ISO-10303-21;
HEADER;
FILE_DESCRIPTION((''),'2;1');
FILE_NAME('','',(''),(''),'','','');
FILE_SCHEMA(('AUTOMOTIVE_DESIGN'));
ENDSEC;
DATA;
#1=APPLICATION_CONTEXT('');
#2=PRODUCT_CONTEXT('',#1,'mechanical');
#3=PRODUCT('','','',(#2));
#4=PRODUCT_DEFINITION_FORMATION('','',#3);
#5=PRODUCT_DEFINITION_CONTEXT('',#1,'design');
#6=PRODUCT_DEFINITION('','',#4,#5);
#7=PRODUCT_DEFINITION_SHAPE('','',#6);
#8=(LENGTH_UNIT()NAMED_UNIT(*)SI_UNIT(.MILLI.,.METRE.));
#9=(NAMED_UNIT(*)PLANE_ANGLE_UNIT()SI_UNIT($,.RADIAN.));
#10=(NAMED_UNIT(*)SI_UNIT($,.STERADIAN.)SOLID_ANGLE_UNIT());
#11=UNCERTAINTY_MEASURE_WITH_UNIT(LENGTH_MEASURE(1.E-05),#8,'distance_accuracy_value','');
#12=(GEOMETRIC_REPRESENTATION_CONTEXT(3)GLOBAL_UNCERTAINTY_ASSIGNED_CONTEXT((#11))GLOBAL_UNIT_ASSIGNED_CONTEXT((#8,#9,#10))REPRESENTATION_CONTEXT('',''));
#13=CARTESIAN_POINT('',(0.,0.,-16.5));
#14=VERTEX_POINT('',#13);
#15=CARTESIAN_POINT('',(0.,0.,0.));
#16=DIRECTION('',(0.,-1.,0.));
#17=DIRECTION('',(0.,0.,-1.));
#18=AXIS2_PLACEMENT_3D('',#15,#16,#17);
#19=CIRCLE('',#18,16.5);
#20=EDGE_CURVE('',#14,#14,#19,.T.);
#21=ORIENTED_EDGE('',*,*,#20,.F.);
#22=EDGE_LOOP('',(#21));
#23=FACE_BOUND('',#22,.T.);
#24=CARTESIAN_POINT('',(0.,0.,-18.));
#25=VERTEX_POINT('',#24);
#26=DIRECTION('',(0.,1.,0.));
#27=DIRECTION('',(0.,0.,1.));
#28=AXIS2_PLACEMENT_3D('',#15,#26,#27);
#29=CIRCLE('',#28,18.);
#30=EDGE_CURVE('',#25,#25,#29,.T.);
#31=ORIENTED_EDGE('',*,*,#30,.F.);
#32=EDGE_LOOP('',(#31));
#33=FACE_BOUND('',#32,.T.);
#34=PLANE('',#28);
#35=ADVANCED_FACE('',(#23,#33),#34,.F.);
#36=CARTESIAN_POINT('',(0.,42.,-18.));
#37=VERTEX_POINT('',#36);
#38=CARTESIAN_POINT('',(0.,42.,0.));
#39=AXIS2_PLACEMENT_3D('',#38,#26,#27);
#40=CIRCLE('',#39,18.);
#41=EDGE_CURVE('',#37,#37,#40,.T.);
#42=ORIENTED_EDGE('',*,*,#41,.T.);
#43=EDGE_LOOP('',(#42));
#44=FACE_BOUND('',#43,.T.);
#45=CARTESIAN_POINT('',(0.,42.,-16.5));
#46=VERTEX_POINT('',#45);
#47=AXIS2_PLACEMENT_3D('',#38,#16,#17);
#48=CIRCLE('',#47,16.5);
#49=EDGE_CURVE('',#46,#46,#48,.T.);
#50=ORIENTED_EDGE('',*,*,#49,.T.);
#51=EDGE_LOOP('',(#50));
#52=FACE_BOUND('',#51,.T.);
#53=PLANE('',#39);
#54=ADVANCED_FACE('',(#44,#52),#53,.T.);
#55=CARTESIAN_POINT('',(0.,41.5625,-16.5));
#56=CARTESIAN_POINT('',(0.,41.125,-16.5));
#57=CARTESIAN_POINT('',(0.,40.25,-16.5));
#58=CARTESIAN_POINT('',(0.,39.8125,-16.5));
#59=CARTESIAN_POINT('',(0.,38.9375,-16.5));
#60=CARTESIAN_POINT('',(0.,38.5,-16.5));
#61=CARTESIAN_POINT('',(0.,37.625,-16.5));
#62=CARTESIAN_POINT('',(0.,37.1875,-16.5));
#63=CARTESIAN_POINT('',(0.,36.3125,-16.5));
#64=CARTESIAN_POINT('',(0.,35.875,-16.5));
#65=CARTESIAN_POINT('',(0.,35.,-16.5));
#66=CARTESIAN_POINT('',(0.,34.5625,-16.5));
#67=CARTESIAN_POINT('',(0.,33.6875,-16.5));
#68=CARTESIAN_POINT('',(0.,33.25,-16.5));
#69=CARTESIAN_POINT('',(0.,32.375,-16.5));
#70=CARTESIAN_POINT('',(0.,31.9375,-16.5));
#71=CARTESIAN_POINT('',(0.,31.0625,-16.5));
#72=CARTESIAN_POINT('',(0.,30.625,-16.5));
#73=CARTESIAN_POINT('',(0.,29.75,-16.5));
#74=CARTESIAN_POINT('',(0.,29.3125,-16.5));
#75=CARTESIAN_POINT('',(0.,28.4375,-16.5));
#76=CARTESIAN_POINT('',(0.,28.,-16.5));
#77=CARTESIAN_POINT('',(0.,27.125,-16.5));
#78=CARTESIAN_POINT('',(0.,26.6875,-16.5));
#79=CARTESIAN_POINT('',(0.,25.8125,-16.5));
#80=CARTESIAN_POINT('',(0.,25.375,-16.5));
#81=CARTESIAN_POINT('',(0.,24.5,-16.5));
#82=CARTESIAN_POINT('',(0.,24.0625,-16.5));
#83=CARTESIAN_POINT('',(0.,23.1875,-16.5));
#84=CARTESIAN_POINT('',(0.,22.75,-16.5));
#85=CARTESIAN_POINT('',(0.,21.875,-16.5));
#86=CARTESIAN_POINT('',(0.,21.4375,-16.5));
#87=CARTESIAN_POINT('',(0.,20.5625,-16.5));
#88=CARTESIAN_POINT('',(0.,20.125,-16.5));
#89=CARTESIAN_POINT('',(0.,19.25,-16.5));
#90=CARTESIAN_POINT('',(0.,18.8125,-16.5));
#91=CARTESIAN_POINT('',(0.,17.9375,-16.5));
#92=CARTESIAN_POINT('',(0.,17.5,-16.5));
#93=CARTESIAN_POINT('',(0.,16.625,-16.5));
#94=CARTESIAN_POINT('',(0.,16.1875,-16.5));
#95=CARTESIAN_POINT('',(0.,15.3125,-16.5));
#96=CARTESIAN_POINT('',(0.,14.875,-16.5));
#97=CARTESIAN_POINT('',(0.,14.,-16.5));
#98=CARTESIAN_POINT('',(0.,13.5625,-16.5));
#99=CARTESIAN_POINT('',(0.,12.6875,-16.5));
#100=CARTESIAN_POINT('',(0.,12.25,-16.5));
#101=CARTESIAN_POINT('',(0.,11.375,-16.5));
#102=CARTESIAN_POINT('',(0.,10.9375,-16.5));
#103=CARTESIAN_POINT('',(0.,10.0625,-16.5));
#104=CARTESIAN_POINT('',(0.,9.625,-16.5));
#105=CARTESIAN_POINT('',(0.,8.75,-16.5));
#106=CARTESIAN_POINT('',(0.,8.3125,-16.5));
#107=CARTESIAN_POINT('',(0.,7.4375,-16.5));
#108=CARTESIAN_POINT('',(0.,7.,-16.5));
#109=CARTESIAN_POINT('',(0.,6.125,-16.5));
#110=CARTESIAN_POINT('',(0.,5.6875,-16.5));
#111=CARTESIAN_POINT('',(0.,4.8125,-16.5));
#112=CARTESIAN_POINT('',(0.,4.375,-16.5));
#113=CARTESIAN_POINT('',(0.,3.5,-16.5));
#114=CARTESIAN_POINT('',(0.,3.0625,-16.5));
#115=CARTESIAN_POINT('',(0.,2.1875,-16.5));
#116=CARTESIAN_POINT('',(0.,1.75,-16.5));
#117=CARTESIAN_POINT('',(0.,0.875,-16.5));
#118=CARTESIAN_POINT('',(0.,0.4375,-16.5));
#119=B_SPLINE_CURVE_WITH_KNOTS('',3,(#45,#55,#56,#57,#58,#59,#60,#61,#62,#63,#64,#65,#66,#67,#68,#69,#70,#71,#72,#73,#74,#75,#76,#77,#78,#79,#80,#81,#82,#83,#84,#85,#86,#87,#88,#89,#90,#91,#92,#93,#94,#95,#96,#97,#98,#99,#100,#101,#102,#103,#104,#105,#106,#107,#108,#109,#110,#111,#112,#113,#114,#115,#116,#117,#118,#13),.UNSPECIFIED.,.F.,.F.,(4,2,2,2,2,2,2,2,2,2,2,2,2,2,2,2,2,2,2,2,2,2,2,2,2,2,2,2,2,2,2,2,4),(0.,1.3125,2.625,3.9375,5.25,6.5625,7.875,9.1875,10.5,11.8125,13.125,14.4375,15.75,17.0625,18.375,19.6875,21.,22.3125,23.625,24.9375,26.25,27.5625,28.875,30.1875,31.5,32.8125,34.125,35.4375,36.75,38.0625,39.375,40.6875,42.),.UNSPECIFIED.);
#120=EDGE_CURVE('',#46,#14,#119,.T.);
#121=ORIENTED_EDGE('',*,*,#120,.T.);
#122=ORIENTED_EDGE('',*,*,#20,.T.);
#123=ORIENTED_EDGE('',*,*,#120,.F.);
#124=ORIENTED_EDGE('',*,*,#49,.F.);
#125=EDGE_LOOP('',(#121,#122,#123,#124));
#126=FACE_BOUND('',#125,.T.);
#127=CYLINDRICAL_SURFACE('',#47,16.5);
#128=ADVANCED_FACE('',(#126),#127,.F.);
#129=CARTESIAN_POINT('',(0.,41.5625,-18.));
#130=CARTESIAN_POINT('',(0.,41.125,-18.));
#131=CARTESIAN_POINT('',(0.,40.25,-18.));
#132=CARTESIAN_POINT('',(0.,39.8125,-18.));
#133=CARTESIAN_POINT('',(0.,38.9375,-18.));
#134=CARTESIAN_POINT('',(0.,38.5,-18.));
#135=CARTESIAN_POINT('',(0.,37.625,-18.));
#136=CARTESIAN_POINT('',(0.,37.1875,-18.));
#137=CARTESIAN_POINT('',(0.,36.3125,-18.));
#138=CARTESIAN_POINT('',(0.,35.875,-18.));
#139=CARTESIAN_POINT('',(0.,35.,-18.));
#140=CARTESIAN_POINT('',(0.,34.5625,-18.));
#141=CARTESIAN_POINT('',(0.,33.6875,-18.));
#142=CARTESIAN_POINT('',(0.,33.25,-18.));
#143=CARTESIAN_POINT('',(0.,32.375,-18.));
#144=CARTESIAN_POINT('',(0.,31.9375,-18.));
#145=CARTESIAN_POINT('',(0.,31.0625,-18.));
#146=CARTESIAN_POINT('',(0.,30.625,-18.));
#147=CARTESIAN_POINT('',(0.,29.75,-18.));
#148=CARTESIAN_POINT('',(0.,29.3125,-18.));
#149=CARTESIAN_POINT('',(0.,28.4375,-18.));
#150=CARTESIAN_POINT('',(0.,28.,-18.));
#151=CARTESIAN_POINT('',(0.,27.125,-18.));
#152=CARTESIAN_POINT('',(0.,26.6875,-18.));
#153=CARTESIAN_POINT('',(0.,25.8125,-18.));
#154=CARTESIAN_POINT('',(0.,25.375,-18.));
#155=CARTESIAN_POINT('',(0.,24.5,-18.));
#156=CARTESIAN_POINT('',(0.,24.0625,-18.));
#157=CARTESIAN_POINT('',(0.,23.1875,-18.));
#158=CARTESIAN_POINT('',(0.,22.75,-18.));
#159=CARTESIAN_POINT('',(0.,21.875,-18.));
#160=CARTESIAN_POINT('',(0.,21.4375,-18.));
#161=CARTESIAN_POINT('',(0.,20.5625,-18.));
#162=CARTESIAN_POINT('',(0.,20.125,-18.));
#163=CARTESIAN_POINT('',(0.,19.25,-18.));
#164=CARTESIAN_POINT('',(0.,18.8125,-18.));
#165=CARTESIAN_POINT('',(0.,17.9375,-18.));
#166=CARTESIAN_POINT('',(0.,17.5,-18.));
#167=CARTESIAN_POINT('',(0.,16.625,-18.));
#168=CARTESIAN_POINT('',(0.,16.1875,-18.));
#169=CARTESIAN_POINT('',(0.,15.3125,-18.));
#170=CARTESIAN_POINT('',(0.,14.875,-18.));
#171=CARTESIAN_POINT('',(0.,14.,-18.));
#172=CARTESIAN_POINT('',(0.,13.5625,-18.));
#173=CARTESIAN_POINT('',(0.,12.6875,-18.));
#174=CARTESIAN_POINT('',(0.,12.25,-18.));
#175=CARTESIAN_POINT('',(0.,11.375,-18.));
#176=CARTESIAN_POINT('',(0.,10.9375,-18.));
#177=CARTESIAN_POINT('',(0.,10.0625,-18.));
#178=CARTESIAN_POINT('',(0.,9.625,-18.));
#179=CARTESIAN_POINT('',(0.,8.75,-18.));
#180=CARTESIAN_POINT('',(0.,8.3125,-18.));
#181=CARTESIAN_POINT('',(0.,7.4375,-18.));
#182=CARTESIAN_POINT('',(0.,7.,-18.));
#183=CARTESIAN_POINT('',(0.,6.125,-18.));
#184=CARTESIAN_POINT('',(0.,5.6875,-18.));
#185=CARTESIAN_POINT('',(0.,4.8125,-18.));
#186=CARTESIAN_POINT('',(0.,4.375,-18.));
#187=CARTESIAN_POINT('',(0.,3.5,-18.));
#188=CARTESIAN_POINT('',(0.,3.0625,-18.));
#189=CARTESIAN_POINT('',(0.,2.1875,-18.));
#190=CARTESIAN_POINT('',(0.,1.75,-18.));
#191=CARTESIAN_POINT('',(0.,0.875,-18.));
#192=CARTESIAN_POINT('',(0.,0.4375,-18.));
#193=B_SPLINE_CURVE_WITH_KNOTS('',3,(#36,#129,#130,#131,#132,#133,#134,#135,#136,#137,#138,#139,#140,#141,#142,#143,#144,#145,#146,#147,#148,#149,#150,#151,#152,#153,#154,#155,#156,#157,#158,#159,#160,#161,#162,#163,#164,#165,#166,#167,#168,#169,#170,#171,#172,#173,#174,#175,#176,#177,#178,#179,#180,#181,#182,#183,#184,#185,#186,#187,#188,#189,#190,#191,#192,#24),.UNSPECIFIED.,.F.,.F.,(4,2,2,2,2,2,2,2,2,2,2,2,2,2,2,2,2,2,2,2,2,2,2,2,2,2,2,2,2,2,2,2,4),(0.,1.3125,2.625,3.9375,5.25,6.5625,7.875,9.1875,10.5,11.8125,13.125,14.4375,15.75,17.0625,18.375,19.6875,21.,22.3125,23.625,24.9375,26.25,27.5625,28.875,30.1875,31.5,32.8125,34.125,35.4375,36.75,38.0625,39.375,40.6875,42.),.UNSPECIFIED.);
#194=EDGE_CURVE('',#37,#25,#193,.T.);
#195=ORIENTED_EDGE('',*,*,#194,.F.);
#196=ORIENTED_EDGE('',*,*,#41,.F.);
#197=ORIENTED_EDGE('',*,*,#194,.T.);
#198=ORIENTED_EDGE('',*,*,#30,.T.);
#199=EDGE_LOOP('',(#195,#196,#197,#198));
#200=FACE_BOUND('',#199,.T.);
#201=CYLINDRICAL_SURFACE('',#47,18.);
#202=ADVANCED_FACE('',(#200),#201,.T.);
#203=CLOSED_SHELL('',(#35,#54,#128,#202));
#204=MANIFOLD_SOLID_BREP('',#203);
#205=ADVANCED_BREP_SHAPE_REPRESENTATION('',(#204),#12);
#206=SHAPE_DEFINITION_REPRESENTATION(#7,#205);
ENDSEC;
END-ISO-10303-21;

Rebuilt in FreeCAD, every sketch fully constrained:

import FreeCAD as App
import Part
import Sketcher
from FreeCAD import Vector

doc = App.newDocument("Part")
body = doc.addObject("PartDesign::Body", "Body")

# Sketch on XZ plane
sketch1 = body.newObject("Sketcher::SketchObject", "Sketch")
sketch1.AttachmentSupport = (doc.getObject("XZ_Plane"), [""])
sketch1.MapMode = "FlatFace"
sketch1.addGeometry(Part.Circle(Vector(0, 0, 0), Vector(0, 0, 1), 18), False)
sketch1.addConstraint(Sketcher.Constraint("Coincident", 0, 3, -1, 1))
sketch1.addConstraint(Sketcher.Constraint("Diameter", 0, 36.0))
pad1 = body.newObject("PartDesign::Pad", "Pad")
pad1.Profile = sketch1
pad1.Length = 42
pad1.Reversed = True

# Sketch on XZ plane
sketch2 = body.newObject("Sketcher::SketchObject", "Sketch001")
sketch2.AttachmentSupport = (doc.getObject("XZ_Plane"), [""])
sketch2.MapMode = "FlatFace"
sketch2.addGeometry(Part.Circle(Vector(0, 0, 0), Vector(0, 0, 1), 16), False)
sketch2.addConstraint(Sketcher.Constraint("Coincident", 0, 3, -1, 1))
sketch2.addConstraint(Sketcher.Constraint("Diameter", 0, 33.0))
pocket1 = body.newObject("PartDesign::Pocket", "Pocket")
pocket1.Profile = sketch2
pocket1.Length = 42

doc.recompute()
